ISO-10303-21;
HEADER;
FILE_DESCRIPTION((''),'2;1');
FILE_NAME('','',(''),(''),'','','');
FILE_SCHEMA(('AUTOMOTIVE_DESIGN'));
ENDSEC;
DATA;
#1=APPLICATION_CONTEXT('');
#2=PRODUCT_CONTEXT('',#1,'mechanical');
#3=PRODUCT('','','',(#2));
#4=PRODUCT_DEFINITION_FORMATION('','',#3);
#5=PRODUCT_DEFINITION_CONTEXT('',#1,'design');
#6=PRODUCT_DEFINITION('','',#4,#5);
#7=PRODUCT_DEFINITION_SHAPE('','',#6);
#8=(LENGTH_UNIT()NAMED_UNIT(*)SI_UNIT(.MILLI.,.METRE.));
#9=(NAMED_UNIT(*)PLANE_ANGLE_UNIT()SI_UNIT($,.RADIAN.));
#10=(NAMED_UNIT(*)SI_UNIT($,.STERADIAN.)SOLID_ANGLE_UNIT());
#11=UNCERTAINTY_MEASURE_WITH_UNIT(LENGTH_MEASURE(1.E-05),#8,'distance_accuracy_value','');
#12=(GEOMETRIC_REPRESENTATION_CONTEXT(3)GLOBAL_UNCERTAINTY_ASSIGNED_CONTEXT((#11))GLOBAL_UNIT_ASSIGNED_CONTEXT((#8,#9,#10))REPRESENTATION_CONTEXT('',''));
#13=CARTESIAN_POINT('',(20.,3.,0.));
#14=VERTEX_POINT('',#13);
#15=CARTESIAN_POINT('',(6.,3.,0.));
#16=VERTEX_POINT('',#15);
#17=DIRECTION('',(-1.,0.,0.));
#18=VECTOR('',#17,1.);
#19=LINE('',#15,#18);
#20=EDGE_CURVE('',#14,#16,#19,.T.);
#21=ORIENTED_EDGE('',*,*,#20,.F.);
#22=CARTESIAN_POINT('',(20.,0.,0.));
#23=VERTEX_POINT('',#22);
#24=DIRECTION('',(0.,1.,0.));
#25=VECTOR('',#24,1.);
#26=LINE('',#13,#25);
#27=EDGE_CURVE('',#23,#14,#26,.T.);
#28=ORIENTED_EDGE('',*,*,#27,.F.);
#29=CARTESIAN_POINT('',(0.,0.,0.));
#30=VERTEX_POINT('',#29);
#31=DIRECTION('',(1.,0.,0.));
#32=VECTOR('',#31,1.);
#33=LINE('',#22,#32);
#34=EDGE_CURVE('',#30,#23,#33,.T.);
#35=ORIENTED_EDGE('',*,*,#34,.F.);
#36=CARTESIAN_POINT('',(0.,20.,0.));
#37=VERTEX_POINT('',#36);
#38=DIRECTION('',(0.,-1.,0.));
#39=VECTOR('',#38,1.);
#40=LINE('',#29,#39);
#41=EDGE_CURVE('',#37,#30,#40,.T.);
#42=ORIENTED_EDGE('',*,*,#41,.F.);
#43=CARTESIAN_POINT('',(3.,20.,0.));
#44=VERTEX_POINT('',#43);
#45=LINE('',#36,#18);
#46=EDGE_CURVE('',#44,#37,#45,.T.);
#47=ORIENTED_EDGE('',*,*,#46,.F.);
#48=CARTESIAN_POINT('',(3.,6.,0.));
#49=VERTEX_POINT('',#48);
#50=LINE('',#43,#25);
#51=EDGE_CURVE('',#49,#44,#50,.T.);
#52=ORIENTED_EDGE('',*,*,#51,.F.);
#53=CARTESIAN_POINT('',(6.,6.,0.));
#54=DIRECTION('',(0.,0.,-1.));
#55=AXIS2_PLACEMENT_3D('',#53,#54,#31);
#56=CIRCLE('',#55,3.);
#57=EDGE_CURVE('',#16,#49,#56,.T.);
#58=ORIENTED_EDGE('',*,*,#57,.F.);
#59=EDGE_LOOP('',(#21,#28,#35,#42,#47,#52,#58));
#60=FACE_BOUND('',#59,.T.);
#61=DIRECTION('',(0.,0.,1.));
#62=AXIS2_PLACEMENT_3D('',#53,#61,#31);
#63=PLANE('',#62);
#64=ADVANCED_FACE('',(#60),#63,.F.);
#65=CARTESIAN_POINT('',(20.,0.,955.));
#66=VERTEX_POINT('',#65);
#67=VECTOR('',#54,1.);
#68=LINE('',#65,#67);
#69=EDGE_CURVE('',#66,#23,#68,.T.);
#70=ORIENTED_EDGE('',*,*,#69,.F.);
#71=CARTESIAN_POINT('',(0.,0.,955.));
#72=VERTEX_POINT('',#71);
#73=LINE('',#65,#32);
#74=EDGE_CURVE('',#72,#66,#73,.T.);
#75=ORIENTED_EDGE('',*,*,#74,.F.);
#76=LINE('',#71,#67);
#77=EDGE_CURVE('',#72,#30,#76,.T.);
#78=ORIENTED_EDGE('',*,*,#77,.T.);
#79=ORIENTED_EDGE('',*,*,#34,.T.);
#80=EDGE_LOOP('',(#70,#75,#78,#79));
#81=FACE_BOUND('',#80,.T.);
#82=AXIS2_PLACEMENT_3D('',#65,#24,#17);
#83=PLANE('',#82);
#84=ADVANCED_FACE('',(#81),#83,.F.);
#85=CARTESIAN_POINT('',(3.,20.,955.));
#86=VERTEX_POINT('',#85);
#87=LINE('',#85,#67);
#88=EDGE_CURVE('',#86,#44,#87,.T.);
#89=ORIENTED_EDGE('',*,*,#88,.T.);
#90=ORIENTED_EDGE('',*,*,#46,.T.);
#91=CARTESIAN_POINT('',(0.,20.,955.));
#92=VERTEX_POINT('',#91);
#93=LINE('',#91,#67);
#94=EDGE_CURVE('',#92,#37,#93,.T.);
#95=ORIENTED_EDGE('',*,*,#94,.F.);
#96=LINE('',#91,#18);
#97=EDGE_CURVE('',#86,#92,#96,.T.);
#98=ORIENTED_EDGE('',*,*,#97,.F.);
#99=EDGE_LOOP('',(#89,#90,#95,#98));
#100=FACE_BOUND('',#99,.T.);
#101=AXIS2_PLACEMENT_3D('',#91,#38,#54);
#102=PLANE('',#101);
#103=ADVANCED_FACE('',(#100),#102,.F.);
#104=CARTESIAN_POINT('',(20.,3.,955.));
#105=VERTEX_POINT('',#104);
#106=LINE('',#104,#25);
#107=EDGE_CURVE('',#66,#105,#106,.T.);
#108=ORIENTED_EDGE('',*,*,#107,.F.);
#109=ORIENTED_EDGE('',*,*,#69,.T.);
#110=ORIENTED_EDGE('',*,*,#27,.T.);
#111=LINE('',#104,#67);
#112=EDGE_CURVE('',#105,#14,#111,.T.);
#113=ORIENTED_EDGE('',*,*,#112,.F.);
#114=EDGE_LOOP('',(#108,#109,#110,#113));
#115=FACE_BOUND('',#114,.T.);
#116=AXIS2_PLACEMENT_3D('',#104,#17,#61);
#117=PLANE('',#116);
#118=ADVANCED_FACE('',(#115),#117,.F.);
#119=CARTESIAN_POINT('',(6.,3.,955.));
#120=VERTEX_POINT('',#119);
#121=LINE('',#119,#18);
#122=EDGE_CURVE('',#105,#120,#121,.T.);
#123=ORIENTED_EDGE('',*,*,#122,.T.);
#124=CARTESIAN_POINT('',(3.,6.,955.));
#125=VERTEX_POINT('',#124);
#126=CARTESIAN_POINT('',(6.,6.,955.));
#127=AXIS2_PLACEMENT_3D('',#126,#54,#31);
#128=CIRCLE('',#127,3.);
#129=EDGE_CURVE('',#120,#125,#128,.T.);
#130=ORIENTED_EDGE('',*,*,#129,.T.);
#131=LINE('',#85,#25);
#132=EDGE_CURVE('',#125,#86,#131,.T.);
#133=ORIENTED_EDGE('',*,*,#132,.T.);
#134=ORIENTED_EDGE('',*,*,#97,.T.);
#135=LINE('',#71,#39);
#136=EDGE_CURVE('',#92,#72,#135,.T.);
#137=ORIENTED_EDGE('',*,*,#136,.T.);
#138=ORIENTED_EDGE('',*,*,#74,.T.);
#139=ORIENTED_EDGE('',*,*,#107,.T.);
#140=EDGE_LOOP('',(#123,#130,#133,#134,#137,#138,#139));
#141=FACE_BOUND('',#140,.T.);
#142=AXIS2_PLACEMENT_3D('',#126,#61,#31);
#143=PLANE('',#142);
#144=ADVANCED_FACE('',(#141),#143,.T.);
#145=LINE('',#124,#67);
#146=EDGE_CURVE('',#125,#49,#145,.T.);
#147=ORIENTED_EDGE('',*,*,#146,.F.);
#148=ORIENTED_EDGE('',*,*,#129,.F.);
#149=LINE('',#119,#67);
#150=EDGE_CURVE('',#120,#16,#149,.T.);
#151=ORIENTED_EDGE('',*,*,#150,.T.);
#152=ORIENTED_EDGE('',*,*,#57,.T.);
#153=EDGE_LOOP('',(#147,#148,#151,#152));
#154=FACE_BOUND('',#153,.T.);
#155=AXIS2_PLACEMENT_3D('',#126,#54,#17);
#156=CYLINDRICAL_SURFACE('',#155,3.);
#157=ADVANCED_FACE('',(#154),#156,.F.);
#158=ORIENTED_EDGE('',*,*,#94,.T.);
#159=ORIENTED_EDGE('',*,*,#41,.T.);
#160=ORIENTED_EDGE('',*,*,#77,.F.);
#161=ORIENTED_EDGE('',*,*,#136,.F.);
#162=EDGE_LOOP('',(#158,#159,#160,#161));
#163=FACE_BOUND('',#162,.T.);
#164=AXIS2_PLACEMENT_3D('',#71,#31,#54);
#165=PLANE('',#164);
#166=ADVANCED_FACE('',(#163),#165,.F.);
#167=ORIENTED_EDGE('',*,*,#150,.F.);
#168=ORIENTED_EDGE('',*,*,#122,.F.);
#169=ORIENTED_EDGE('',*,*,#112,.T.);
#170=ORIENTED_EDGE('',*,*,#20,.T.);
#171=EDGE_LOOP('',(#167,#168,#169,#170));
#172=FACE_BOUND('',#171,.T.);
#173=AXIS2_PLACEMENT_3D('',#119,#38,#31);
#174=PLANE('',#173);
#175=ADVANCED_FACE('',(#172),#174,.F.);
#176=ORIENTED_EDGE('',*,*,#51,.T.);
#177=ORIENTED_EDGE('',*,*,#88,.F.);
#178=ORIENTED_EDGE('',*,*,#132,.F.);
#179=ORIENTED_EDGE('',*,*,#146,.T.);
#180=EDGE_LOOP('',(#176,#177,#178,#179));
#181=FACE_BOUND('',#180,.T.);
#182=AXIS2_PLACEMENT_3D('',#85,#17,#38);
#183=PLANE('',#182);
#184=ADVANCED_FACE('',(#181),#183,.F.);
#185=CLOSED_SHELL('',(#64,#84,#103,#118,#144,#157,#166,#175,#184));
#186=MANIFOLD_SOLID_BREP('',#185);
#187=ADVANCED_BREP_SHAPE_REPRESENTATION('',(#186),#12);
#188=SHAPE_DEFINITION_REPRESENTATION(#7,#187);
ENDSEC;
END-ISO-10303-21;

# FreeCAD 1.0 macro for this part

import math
import FreeCAD as App
import Part
import Sketcher

V = App.Vector

doc = App.newDocument("Part")
body = doc.addObject("PartDesign::Body", "Body")

# Sketch on XY plane
sketch1 = doc.addObject("Sketcher::SketchObject", "Sketch")
body.addObject(sketch1)
sketch1.AttachmentSupport = (doc.XY_Plane, [""])
sketch1.MapMode = "FlatFace"
sketch1.addGeometry([
    Part.LineSegment(V(0, 20, 0), V(0, 0, 0)),  # 0
    Part.LineSegment(V(0, 0, 0), V(20, 0, 0)),  # 1
    Part.LineSegment(V(20, 0, 0), V(20, 3, 0)),  # 2
    Part.LineSegment(V(20, 3, 0), V(6, 3, 0)),  # 3
    Part.ArcOfCircle(Part.Circle(V(6, 6, 0), V(0, 0, 1), 3), math.radians(180), math.radians(270)),  # 4
    Part.LineSegment(V(3, 6, 0), V(3, 20, 0)),  # 5
    Part.LineSegment(V(3, 20, 0), V(0, 20, 0)),  # 6
], False)
sketch1.addConstraint([
    Sketcher.Constraint("Coincident", 0, 2, 1, 1),
    Sketcher.Constraint("Coincident", 1, 2, 2, 1),
    Sketcher.Constraint("Coincident", 2, 2, 3, 1),
    Sketcher.Constraint("Tangent", 3, 2, 4, 2),
    Sketcher.Constraint("Tangent", 4, 1, 5, 1),
    Sketcher.Constraint("Coincident", 5, 2, 6, 1),
    Sketcher.Constraint("Coincident", 6, 2, 0, 1),
    Sketcher.Constraint("Vertical", 0),
    Sketcher.Constraint("Horizontal", 1),
    Sketcher.Constraint("Vertical", 2),
    Sketcher.Constraint("Horizontal", 3),
    Sketcher.Constraint("Vertical", 5),
    Sketcher.Constraint("Horizontal", 6),
    Sketcher.Constraint("Coincident", 0, 2, -1, 1),
    Sketcher.Constraint("Equal", 1, 0),
    Sketcher.Constraint("Equal", 6, 2),
    Sketcher.Constraint("Radius", 4, 3.0),
    Sketcher.Constraint("DistanceX", 1, 1, 1, 2, 20.0),
    Sketcher.Constraint("DistanceX", 3, 2, 3, 1, 14.0),
])
pad1 = doc.addObject("PartDesign::Pad", "Pad")
body.addObject(pad1)
pad1.Profile = sketch1
pad1.Length = 955

doc.recompute()
